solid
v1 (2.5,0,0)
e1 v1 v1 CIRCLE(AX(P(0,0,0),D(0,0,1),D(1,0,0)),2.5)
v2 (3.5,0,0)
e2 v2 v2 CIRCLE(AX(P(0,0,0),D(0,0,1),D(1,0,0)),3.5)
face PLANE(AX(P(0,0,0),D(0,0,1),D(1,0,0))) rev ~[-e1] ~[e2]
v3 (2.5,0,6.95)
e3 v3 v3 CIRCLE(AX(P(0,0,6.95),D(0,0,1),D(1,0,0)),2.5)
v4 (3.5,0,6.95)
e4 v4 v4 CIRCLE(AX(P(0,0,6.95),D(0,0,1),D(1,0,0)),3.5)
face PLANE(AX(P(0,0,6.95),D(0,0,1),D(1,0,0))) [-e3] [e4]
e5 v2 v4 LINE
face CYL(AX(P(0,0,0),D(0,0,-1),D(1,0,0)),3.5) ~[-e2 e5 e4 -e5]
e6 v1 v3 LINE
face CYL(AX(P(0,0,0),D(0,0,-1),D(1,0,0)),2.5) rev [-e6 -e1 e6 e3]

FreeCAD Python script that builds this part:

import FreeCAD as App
import Part
import Sketcher
from FreeCAD import Vector
Q = App.Units.Quantity

doc = App.newDocument("Part")
body = doc.addObject("PartDesign::Body", "Body")

# Sketch on XY plane
sketch1 = body.newObject("Sketcher::SketchObject", "Sketch")
sketch1.AttachmentSupport = (doc.getObject("XY_Plane"), [""])
sketch1.MapMode = "FlatFace"
sketch1.addGeometry(Part.Circle(Vector(0, 0, 0), Vector(0, 0, 1), 3.5), False)
sketch1.addGeometry(Part.Circle(Vector(0, 0, 0), Vector(0, 0, 1), 2.5), False)
sketch1.addConstraint(Sketcher.Constraint("Coincident", 0, 3, -1, 1))
sketch1.addConstraint(Sketcher.Constraint("Coincident", 1, 3, -1, 1))
sketch1.addConstraint(Sketcher.Constraint("Diameter", 0, Q("7 mm")))
sketch1.addConstraint(Sketcher.Constraint("Diameter", 1, Q("5 mm")))
pad1 = body.newObject("PartDesign::Pad", "Pad")
pad1.Profile = sketch1
pad1.Length = 6.95

doc.recompute()
